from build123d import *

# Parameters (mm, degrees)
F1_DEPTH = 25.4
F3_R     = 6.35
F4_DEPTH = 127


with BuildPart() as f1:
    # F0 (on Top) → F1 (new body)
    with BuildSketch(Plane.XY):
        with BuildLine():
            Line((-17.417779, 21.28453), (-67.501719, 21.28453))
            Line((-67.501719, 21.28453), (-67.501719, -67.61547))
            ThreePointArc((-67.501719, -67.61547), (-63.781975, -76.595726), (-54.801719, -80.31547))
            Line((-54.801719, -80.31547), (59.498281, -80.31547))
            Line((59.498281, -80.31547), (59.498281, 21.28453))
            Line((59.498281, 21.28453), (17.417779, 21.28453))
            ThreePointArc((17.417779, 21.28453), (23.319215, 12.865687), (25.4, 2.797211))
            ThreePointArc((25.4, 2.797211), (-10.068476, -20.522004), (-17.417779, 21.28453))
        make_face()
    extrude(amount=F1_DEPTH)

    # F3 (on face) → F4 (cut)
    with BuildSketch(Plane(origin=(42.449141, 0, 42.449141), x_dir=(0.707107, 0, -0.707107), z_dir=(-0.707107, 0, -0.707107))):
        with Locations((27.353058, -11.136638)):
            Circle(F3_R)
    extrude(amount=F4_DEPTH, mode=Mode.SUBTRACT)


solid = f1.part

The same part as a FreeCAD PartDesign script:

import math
import FreeCAD as App
import Part
import Sketcher
Q = App.Units.Quantity

doc = App.newDocument("Part")
body = doc.addObject("PartDesign::Body", "Body")

# Sketch on XY plane
sketch1 = body.newObject("Sketcher::SketchObject", "Sketch")
sketch1.AttachmentSupport = (doc.getObject("XY_Plane"), [""])
sketch1.MapMode = "FlatFace"
sketch1.addGeometry(Part.LineSegment(App.Vector(-17, 21, 0), App.Vector(-68, 21, 0)), False)
sketch1.addGeometry(Part.LineSegment(App.Vector(-68, 21, 0), App.Vector(-68, -68, 0)), False)
sketch1.addGeometry(Part.ArcOfCircle(Part.Circle(App.Vector(-55, -68, 0), App.Vector(0, 0, 1), 13), math.radians(-180), math.radians(-90)), False)
sketch1.addGeometry(Part.LineSegment(App.Vector(-55, -80, 0), App.Vector(59, -80, 0)), False)
sketch1.addGeometry(Part.LineSegment(App.Vector(59, -80, 0), App.Vector(59, 21, 0)), False)
sketch1.addGeometry(Part.LineSegment(App.Vector(59, 21, 0), App.Vector(17, 21, 0)), False)
sketch1.addGeometry(Part.ArcOfCircle(Part.Circle(App.Vector(0, 3, 0), App.Vector(0, 0, 1), 25), math.radians(0), math.radians(47)), False)
sketch1.addGeometry(Part.ArcOfCircle(Part.Circle(App.Vector(0, 3, 0), App.Vector(0, 0, 1), 25), math.radians(133), math.radians(360)), False)
sketch1.addConstraint(Sketcher.Constraint("Coincident", 0, 2, 1, 1))
sketch1.addConstraint(Sketcher.Constraint("Tangent", 1, 2, 2, 1))
sketch1.addConstraint(Sketcher.Constraint("Tangent", 2, 2, 3, 1))
sketch1.addConstraint(Sketcher.Constraint("Coincident", 3, 2, 4, 1))
sketch1.addConstraint(Sketcher.Constraint("Coincident", 4, 2, 5, 1))
sketch1.addConstraint(Sketcher.Constraint("Coincident", 5, 2, 6, 2))
sketch1.addConstraint(Sketcher.Constraint("Tangent", 6, 1, 7, 2))
sketch1.addConstraint(Sketcher.Constraint("Coincident", 7, 1, 0, 1))
sketch1.addConstraint(Sketcher.Constraint("Horizontal", 0))
sketch1.addConstraint(Sketcher.Constraint("Vertical", 1))
sketch1.addConstraint(Sketcher.Constraint("Horizontal", 3))
sketch1.addConstraint(Sketcher.Constraint("Vertical", 4))
sketch1.addConstraint(Sketcher.Constraint("Horizontal", 5))
sketch1.addConstraint(Sketcher.Constraint("Equal", 6, 7))
sketch1.addConstraint(Sketcher.Constraint("Symmetric", 5, 2, 7, 1, -2))
sketch1.addConstraint(Sketcher.Constraint("Horizontal", 7, 3, 6, 1))
sketch1.addConstraint(Sketcher.Constraint("Radius", 6, Q("1 in")))
sketch1.addConstraint(Sketcher.Constraint("Radius", 2, Q("0.5 in")))
sketch1.addConstraint(Sketcher.Constraint("DistanceY", 4, 1, 4, 2, Q("4 in")))
sketch1.addConstraint(Sketcher.Constraint("DistanceX", 3, 1, 3, 2, Q("4.5 in")))
sketch1.addConstraint(Sketcher.Constraint("DistanceX", 5, 2, 5, 1, Q("42.080502 mm")))
sketch1.addConstraint(Sketcher.Constraint("DistanceX", 0, 2, 0, 1, Q("50.08394 mm")))
sketch1.addConstraint(Sketcher.Constraint("DistanceY", 2, 3, -1, 1, Q("67.61547 mm")))
pad1 = body.newObject("PartDesign::Pad", "Pad")
pad1.Profile = sketch1
pad1.Length = Q("1 in")

# Sketch on an angled plane
sketch2 = body.newObject("Sketcher::SketchObject", "Sketch001")
sketch2.Placement = App.Placement(App.Vector(42.449141, 0, 42.449141), App.Rotation(App.Vector(0.707106781, 0, -0.707106781), App.Vector(0, -0.999999999, 0), App.Vector(-0.707106781, 0, -0.707106781), "ZXY"))
sketch2.addGeometry(Part.Circle(App.Vector(27, -11, 0), App.Vector(0, 0, 1), 6), False)
sketch2.addConstraint(Sketcher.Constraint("Diameter", 0, Q("0.5 in")))
sketch2.addConstraint(Sketcher.Constraint("DistanceX", -1, 1, 0, 3, Q("27.353058 mm")))
sketch2.addConstraint(Sketcher.Constraint("DistanceY", 0, 3, -1, 1, Q("11.136638 mm")))
pocket1 = body.newObject("PartDesign::Pocket", "Pocket")
pocket1.Profile = sketch2
pocket1.Length = Q("5 in")
pocket1.Reversed = True

doc.recompute()
